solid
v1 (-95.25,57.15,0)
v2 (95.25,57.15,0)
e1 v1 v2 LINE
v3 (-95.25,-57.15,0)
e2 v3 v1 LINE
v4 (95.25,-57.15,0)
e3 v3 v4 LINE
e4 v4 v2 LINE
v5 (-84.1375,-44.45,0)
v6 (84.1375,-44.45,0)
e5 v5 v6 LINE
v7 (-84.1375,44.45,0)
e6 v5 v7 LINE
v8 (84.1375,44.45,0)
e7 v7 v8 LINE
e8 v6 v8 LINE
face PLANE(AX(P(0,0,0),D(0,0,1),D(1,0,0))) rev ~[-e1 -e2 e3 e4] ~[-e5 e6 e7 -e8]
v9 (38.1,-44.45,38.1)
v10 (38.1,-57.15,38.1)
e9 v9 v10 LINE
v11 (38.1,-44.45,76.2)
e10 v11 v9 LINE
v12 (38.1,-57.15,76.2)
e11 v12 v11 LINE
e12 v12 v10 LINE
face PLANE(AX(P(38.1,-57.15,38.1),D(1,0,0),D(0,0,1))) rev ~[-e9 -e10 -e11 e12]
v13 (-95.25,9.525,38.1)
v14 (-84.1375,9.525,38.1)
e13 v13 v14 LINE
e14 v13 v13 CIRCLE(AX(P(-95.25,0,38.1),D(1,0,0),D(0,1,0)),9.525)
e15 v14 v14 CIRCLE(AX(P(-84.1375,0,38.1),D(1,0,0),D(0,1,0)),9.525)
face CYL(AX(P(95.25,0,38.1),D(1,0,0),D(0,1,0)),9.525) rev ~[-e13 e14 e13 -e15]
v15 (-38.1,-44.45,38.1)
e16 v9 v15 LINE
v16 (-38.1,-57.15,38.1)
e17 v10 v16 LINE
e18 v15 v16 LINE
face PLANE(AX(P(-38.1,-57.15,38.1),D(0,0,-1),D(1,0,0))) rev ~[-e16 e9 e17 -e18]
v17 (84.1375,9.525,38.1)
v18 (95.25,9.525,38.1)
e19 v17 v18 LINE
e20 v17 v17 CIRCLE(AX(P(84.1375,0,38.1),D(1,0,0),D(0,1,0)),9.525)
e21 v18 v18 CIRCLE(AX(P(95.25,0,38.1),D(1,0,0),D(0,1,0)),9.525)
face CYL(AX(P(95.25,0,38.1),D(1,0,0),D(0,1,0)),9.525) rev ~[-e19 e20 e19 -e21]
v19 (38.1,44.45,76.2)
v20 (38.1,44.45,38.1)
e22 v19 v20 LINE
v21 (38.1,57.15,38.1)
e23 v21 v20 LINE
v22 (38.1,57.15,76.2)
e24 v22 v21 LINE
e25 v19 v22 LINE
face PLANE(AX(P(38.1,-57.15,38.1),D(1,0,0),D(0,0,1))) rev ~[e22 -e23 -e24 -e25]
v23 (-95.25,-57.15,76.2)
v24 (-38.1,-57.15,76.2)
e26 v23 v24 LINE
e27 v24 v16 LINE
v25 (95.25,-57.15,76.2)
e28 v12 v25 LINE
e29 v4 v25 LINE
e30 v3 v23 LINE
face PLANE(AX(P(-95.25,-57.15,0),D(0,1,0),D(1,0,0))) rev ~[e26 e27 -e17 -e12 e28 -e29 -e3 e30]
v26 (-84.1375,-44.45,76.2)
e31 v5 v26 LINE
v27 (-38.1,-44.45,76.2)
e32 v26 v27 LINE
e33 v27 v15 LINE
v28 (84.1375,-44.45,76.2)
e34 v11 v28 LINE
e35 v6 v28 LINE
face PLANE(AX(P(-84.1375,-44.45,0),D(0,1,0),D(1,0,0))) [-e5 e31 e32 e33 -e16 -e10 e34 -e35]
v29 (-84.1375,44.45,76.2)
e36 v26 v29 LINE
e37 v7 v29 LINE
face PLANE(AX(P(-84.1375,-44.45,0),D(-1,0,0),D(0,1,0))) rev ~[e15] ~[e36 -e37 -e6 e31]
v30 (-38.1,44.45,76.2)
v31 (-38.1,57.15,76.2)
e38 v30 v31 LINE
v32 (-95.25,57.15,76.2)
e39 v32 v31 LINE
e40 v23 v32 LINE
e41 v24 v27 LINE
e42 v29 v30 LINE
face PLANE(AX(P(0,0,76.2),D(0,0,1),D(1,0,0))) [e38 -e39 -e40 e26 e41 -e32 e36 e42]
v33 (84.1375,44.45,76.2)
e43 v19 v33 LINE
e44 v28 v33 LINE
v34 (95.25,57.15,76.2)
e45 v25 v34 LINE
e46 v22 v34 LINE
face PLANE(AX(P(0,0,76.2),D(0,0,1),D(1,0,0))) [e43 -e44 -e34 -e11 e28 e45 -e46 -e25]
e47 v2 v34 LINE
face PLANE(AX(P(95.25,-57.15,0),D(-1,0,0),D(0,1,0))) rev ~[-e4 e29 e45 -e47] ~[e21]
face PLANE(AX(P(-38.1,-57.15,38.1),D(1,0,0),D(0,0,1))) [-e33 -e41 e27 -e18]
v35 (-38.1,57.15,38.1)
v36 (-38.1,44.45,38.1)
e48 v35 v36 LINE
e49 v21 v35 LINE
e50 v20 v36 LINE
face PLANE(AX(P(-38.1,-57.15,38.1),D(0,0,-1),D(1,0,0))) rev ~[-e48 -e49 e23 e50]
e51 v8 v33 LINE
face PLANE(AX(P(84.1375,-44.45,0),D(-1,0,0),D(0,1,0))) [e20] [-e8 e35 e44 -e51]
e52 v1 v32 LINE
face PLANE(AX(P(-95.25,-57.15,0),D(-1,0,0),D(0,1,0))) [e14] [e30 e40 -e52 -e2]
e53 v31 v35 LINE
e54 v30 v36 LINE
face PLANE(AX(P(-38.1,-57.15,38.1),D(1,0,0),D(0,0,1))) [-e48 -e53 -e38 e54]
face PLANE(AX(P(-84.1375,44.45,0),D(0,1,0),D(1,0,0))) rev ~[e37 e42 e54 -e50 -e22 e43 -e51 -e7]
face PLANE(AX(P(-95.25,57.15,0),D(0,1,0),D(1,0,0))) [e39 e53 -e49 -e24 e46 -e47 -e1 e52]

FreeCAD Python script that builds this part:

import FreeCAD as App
import Part
import Sketcher
from FreeCAD import Vector
Q = App.Units.Quantity


def add_polygon(sketch, points):
    """Adds a closed chain of lines whose ends are joined by coincident constraints."""
    first, n = sketch.GeometryCount, len(points)
    for a, b in zip(points, points[1:] + points[:1]):
        sketch.addGeometry(Part.LineSegment(App.Vector(*a, 0), App.Vector(*b, 0)), False)
    for i in range(n):
        sketch.addConstraint(Sketcher.Constraint("Coincident", first + i, 2, first + (i + 1) % n, 1))

doc = App.newDocument("Part")
body = doc.addObject("PartDesign::Body", "Body")

# Sketch on XY plane
sketch1 = doc.addObject("Sketcher::SketchObject", "Sketch")
body.addObject(sketch1)
sketch1.AttachmentSupport = (doc.XY_Plane, [""])
sketch1.MapMode = "FlatFace"
add_polygon(sketch1, [(-95, 57), (-95, -57), (95, -57), (95, 57)])  # lines 0-3
add_polygon(sketch1, [(84, -44), (-84, -44), (-84, 44), (84, 44)])  # lines 4-7
sketch1.addConstraint([
    Sketcher.Constraint("Vertical", 0),
    Sketcher.Constraint("Horizontal", 1),
    Sketcher.Constraint("Vertical", 2),
    Sketcher.Constraint("Horizontal", 3),
    Sketcher.Constraint("Horizontal", 4),
    Sketcher.Constraint("Vertical", 5),
    Sketcher.Constraint("Horizontal", 6),
    Sketcher.Constraint("Vertical", 7),
    Sketcher.Constraint("Symmetric", 0, 2, 2, 2, -1, 1),
    Sketcher.Constraint("Symmetric", 4, 2, 6, 2, -1, 1),
    Sketcher.Constraint("DistanceX", 1, 1, 1, 2, Q("7.5 in")),
    Sketcher.Constraint("DistanceY", 0, 2, 0, 1, Q("4.5 in")),
    Sketcher.Constraint("DistanceY", 5, 1, 5, 2, Q("3.5 in")),
    Sketcher.Constraint("DistanceX", 4, 2, 4, 1, Q("6.625 in")),
])
pad1 = doc.addObject("PartDesign::Pad", "Pad")
body.addObject(pad1)
pad1.Profile = sketch1
pad1.Length = Q("3 in")

# Sketch on XZ plane
sketch2 = doc.addObject("Sketcher::SketchObject", "Sketch001")
body.addObject(sketch2)
sketch2.AttachmentSupport = (doc.XZ_Plane, [""])
sketch2.MapMode = "FlatFace"
sketch2.AttachmentOffset = App.Placement(Vector(0, 0, 2.25 * 25.4), App.Rotation())
add_polygon(sketch2, [(-38, 114), (-38, 38), (38, 38), (38, 114)])  # lines 0-3
sketch2.addConstraint([
    Sketcher.Constraint("Vertical", 0),
    Sketcher.Constraint("Horizontal", 1),
    Sketcher.Constraint("Vertical", 2),
    Sketcher.Constraint("Horizontal", 3),
    Sketcher.Constraint("Equal", 3, 0),
    Sketcher.Constraint("DistanceX", 1, 1, 1, 2, Q("3 in")),
    Sketcher.Constraint("DistanceX", 0, 2, -1, 1, Q("1.5 in")),
    Sketcher.Constraint("DistanceY", -1, 1, 0, 2, Q("1.5 in")),
])
pocket1 = doc.addObject("PartDesign::Pocket", "Pocket")
body.addObject(pocket1)
pocket1.Profile = sketch2
pocket1.Length = Q("15 in")
pocket1.Midplane = True

# Sketch on YZ plane
sketch3 = doc.addObject("Sketcher::SketchObject", "Sketch002")
body.addObject(sketch3)
sketch3.AttachmentSupport = (doc.YZ_Plane, [""])
sketch3.MapMode = "FlatFace"
sketch3.AttachmentOffset = App.Placement(Vector(0, 0, 3.75 * 25.4), App.Rotation())
sketch3.addGeometry(Part.Circle(Vector(0, 38, 0), Vector(0, 0, 1), 10), False)
sketch3.addConstraint([
    Sketcher.Constraint("PointOnObject", 0, 3, -2),
    Sketcher.Constraint("Diameter", 0, Q("0.75 in")),
    Sketcher.Constraint("DistanceY", -1, 1, 0, 3, Q("1.5 in")),
])
pocket2 = doc.addObject("PartDesign::Pocket", "Pocket001")
body.addObject(pocket2)
pocket2.Profile = sketch3
pocket2.Length = Q("15 in")
pocket2.Midplane = True

doc.recompute()
